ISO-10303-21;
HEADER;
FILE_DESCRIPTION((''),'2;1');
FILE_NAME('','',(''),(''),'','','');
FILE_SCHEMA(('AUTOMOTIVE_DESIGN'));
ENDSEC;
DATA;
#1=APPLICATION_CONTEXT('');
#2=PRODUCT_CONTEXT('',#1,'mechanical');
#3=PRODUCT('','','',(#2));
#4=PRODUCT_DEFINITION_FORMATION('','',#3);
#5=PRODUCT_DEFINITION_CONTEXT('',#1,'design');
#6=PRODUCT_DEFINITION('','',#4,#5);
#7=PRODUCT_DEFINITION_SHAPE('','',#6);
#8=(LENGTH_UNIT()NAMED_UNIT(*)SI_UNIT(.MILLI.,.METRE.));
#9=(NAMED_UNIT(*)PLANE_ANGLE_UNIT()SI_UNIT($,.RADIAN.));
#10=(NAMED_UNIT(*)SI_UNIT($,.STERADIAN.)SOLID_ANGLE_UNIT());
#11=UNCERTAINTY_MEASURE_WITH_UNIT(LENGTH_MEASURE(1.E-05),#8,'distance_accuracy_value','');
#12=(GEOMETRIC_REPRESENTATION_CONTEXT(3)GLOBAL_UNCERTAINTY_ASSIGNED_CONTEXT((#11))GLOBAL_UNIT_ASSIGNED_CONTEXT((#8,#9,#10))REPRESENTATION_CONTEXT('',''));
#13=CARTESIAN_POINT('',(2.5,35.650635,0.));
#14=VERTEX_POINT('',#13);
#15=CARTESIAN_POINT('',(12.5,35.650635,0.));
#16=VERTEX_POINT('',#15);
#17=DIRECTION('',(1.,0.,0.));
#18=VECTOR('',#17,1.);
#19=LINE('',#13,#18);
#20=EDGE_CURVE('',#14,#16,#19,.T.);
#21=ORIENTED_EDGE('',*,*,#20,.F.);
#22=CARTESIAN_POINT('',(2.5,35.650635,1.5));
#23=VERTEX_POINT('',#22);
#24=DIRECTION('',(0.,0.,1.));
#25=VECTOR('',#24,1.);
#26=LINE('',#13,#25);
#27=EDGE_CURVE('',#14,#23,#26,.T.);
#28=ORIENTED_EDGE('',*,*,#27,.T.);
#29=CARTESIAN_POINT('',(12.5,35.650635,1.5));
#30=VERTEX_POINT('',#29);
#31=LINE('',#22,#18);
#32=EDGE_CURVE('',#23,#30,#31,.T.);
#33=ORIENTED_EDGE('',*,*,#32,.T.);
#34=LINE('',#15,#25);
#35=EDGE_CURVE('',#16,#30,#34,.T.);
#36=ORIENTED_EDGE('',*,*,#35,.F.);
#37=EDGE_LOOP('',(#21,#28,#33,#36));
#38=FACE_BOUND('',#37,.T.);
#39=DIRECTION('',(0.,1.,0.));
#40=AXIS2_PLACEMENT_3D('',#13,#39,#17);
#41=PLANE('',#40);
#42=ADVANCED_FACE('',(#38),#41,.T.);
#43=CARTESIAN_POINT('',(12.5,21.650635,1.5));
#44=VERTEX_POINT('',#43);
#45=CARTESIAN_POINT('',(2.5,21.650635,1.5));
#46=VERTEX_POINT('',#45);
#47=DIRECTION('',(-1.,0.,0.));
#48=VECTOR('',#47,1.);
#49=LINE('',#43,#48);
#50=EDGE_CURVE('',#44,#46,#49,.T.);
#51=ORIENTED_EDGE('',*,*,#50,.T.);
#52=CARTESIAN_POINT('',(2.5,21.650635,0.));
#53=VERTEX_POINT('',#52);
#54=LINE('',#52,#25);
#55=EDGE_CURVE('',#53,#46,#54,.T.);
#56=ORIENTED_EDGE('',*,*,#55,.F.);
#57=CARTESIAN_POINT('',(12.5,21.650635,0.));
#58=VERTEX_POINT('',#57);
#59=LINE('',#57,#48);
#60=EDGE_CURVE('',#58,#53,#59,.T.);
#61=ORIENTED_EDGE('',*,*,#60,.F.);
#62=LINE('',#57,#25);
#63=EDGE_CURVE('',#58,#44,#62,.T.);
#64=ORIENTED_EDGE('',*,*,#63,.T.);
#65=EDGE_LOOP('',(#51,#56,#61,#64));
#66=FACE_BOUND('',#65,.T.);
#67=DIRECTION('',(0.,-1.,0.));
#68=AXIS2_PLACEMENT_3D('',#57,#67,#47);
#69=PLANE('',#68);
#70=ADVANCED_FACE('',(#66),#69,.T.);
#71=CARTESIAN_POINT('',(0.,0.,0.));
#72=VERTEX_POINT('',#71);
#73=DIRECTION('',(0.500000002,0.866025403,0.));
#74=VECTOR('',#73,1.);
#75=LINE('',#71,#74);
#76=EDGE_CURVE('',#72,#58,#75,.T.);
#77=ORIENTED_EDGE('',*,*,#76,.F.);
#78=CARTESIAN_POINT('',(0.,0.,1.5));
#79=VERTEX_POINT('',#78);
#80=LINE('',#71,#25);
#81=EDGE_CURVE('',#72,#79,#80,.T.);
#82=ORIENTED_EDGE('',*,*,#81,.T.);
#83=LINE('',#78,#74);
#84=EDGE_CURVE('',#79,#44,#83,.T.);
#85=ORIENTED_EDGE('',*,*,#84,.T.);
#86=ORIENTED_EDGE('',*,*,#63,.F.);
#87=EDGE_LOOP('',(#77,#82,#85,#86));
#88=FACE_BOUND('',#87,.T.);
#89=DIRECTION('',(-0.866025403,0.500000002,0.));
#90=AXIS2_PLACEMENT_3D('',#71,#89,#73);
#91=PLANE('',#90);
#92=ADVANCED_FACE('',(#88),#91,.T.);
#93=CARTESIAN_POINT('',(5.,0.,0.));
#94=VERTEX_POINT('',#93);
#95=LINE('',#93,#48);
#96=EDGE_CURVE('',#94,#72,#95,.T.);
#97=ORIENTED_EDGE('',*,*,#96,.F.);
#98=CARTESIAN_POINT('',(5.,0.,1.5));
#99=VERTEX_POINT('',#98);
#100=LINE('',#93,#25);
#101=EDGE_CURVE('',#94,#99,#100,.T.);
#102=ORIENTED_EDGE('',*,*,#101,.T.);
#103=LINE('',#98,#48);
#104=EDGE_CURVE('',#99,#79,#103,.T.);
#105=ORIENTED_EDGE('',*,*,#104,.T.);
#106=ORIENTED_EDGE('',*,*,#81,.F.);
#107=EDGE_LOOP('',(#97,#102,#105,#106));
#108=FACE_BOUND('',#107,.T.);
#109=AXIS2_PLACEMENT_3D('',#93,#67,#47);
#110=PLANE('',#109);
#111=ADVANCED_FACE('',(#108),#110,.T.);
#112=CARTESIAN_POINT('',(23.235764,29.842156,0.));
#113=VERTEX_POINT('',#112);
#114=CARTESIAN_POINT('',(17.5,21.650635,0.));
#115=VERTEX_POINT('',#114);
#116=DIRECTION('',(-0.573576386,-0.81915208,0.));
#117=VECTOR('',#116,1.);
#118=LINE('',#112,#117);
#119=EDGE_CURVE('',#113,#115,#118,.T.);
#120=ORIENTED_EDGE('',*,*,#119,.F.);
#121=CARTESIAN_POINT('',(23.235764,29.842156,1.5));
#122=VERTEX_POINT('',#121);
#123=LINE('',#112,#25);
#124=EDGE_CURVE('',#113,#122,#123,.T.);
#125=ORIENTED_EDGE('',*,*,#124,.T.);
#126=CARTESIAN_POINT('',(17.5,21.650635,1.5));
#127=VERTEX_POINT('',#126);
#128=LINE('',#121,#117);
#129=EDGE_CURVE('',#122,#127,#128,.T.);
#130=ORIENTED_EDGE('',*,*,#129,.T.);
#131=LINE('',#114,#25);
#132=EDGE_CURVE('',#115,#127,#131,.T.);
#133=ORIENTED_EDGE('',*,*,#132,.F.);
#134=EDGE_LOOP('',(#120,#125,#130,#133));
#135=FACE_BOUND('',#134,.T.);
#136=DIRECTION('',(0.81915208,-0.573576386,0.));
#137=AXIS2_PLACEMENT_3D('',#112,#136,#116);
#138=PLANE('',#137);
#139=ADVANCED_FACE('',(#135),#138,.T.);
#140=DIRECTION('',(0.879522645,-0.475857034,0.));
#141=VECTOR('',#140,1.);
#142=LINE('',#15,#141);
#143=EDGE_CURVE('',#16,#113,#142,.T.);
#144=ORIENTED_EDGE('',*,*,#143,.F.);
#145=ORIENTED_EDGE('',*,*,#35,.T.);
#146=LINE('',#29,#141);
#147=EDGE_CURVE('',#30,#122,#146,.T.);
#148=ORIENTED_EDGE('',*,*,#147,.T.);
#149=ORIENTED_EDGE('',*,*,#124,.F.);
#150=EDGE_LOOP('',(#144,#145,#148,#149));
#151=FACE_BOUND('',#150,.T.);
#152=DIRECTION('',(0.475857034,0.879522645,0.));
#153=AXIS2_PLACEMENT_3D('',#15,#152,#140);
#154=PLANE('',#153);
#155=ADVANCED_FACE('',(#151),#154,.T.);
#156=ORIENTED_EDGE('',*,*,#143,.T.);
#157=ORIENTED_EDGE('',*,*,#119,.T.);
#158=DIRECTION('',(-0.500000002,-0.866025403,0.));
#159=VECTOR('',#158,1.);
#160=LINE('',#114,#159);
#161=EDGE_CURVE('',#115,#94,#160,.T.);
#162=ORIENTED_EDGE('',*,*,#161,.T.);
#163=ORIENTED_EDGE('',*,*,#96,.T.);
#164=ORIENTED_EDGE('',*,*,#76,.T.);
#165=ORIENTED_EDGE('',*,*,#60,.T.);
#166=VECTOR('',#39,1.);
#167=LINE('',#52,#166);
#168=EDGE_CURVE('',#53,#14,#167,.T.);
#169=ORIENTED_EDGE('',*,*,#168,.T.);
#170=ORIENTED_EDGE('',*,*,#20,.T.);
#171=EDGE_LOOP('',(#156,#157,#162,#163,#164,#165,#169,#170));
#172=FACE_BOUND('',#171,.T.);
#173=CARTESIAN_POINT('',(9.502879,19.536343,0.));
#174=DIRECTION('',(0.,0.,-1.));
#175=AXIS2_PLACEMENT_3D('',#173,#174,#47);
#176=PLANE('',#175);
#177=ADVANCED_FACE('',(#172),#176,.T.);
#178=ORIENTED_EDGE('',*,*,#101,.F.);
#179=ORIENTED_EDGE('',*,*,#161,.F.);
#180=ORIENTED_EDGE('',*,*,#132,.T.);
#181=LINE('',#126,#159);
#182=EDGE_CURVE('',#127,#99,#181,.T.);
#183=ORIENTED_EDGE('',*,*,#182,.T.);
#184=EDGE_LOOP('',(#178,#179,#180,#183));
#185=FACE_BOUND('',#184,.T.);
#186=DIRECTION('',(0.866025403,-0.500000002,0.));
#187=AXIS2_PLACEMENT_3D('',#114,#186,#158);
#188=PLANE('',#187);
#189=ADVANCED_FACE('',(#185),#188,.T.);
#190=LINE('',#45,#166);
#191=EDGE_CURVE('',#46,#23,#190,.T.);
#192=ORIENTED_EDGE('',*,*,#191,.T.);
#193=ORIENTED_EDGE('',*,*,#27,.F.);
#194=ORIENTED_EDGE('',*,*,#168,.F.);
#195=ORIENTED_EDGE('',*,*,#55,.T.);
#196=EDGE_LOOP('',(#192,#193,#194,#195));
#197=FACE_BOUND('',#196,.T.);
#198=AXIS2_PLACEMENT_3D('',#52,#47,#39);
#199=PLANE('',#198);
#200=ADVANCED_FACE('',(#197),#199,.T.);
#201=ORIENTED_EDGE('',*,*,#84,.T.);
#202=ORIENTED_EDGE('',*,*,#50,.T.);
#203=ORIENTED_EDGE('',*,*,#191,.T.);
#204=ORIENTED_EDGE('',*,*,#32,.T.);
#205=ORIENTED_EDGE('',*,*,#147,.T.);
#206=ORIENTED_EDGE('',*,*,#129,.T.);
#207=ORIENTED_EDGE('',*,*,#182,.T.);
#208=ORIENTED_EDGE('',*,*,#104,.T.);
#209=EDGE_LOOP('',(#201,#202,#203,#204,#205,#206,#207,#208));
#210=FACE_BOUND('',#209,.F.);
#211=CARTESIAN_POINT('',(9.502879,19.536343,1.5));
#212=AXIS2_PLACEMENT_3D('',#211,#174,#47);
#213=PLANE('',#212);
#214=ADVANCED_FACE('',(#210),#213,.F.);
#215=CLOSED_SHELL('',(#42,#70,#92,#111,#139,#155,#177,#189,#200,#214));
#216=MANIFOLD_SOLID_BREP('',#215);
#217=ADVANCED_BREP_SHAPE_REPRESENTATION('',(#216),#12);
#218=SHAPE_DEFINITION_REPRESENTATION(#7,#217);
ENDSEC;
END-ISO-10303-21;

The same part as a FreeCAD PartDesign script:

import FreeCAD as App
import Part
import Sketcher
Q = App.Units.Quantity


def add_polygon(sketch, points):
    """Adds a closed chain of lines whose ends are joined by coincident constraints."""
    first, n = sketch.GeometryCount, len(points)
    for a, b in zip(points, points[1:] + points[:1]):
        sketch.addGeometry(Part.LineSegment(App.Vector(*a, 0), App.Vector(*b, 0)), False)
    for i in range(n):
        sketch.addConstraint(Sketcher.Constraint("Coincident", first + i, 2, first + (i + 1) % n, 1))

doc = App.newDocument("Part")
params = doc.addObject("Spreadsheet::Sheet", "Params")
for row, (alias, value) in enumerate([
    ("sketch1_width", "5 mm"),
    ("sketch1_width2", "10 mm"),
    ("sketch1_height", "14 mm"),
    ("sketch1_length", "25 mm"),
    ("sketch1_length2", "10 mm"),
    ("pad1_length", "1.5 mm"),
], start=1):
    params.set(f"A{row}", alias)
    params.set(f"B{row}", "=" + value)
    params.setAlias(f"B{row}", alias)

body = doc.addObject("PartDesign::Body", "Body")

sketch1 = doc.addObject("Sketcher::SketchObject", "Sketch")
body.addObject(sketch1)
sketch1.AttachmentSupport = (doc.XY_Plane, [""])
sketch1.MapMode = "FlatFace"
add_polygon(sketch1, [(12, 22), (0, 0), (5, 0), (18, 22), (23, 30), (12, 36), (2, 36), (2, 22)])
sketch1.addConstraint(Sketcher.Constraint("Horizontal", 1))
sketch1.addConstraint(Sketcher.Constraint("Horizontal", 5))
sketch1.addConstraint(Sketcher.Constraint("Vertical", 6))
sketch1.addConstraint(Sketcher.Constraint("Horizontal", 7))
sketch1.addConstraint(Sketcher.Constraint("Coincident", 0, 2, -1, 1))
sketch1.addConstraint(Sketcher.Constraint("Parallel", 0, 2))
sketch1.addConstraint(Sketcher.Constraint("Horizontal", 2, 2, 6, 2))
sketch1.addConstraint(Sketcher.Constraint("Vertical", 4, 2, 7, 2))
sketch1.addConstraint(Sketcher.Constraint("DistanceX", 1, 1, 1, 2, Q("5 mm")))
sketch1.addConstraint(Sketcher.Constraint("DistanceX", 5, 2, 5, 1, Q("10 mm")))
sketch1.addConstraint(Sketcher.Constraint("DistanceY", 6, 2, 6, 1, Q("14 mm")))
sketch1.addConstraint(Sketcher.Constraint("Angle", 0, Q("-120 deg")))
sketch1.addConstraint(Sketcher.Constraint("Angle", 3, Q("55.000004 deg")))
sketch1.addConstraint(Sketcher.Constraint("Distance", 0, Q("25 mm")))
sketch1.addConstraint(Sketcher.Constraint("Distance", 3, Q("10 mm")))
sketch1.setExpression("Constraints[16]", "Params.sketch1_width")
sketch1.setExpression("Constraints[17]", "Params.sketch1_width2")
sketch1.setExpression("Constraints[18]", "Params.sketch1_height")
sketch1.setExpression("Constraints[21]", "Params.sketch1_length")
sketch1.setExpression("Constraints[22]", "Params.sketch1_length2")
pad1 = doc.addObject("PartDesign::Pad", "Pad")
body.addObject(pad1)
pad1.Profile = sketch1
pad1.setExpression("Length", "Params.pad1_length")

doc.recompute()
